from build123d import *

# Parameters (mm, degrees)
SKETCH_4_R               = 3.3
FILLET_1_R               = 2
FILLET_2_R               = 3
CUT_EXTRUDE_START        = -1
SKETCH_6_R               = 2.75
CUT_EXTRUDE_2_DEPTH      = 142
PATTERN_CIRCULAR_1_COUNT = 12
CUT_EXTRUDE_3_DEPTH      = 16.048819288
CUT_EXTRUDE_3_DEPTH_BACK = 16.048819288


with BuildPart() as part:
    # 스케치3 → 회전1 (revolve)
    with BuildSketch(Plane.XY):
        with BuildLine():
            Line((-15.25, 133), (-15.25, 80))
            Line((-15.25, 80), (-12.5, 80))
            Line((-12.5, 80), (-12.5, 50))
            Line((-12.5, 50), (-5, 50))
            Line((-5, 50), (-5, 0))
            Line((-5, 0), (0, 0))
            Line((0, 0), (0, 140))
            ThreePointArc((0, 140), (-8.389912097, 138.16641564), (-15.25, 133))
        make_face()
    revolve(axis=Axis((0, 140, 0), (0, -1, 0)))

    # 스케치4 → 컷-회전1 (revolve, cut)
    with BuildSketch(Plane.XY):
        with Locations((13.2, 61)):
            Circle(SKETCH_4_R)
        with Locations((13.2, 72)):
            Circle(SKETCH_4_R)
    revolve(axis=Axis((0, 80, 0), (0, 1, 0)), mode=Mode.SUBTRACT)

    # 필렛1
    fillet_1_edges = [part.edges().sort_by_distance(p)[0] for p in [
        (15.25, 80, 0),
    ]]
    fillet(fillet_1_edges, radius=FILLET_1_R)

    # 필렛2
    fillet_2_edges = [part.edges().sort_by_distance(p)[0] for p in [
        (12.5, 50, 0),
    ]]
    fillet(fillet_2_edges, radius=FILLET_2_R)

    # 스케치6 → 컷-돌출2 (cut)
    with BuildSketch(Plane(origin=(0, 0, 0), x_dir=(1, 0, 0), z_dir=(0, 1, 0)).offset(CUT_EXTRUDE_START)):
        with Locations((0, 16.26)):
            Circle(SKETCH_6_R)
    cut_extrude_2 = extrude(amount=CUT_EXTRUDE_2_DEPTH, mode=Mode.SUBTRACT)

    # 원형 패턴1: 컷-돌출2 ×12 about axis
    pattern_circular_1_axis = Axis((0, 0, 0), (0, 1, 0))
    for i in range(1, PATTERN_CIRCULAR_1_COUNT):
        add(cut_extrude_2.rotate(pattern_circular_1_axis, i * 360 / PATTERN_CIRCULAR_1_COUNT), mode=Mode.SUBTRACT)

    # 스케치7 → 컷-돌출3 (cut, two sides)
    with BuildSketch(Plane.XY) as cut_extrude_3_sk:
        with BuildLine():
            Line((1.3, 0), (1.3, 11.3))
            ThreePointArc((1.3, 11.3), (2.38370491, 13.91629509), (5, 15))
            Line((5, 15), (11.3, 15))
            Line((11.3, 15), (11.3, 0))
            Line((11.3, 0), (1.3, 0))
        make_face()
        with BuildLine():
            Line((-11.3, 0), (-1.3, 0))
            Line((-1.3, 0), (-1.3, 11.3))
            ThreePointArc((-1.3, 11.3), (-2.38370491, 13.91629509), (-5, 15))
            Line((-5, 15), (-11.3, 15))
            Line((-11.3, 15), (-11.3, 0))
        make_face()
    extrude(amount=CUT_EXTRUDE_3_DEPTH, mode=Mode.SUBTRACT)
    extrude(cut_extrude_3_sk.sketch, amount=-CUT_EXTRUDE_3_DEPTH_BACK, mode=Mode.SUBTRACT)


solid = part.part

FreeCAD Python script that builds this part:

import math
import FreeCAD as App
import Part
import Sketcher

V = App.Vector


def edges_at(feature, points):
    """Names of the edges that pass closest to the given points."""
    edges = feature.Shape.Edges
    near = lambda p: min(range(len(edges)), key=lambda i: edges[i].distToShape(Part.Vertex(*p))[0])
    return sorted({f"Edge{near(p) + 1}" for p in points})

doc = App.newDocument("Part")
params = doc.addObject("Spreadsheet::Sheet", "Params")
for row, (alias, value) in enumerate([
    ("sketch1_width", "5 mm"),
    ("sketch1_height", "53 mm"),
    ("sketch1_height2", "30 mm"),
    ("sketch1_height3", "50 mm"),
    ("sketch1_height4", "140 mm"),
    ("revolution_angle", "360 deg"),
    ("sketch2_diameter", "6.6 mm"),
    ("groove_angle", "360 deg"),
    ("fillet_radius", "2 mm"),
    ("fillet2_radius", "3 mm"),
    ("sketch3_diameter", "5.5 mm"),
    ("pocket1_length", "142 mm"),
    ("sketch4_radius", "3.7 mm"),
    ("sketch4_width", "10 mm"),
    ("sketch4_height", "15 mm"),
], start=1):
    params.set(f"A{row}", alias)
    params.set(f"B{row}", "=" + value)
    params.setAlias(f"B{row}", alias)

body = doc.addObject("PartDesign::Body", "Body")

sketch1 = body.newObject("Sketcher::SketchObject", "Sketch")
sketch1.AttachmentSupport = (doc.getObject("XY_Plane"), [""])
sketch1.MapMode = "FlatFace"
sketch1.addGeometry(Part.LineSegment(V(-15.2, 133, 0), V(-15.2, 80, 0)), False)
sketch1.addGeometry(Part.LineSegment(V(-15.2, 80, 0), V(-12.5, 80, 0)), False)
sketch1.addGeometry(Part.LineSegment(V(-12.5, 80, 0), V(-12.5, 50, 0)), False)
sketch1.addGeometry(Part.LineSegment(V(-12.5, 50, 0), V(-5, 50, 0)), False)
sketch1.addGeometry(Part.LineSegment(V(-5, 50, 0), V(-5, 0, 0)), False)
sketch1.addGeometry(Part.LineSegment(V(-5, 0, 0), V(0, 0, 0)), False)
sketch1.addGeometry(Part.LineSegment(V(0, 0, 0), V(0, 140, 0)), False)
sketch1.addGeometry(Part.ArcOfCircle(Part.Circle(V(0, 119.9, 0), V(0, 0, 1), 20.1), math.radians(90), math.radians(139)), False)
sketch1.addConstraint(Sketcher.Constraint("Coincident", 0, 2, 1, 1))
sketch1.addConstraint(Sketcher.Constraint("Coincident", 1, 2, 2, 1))
sketch1.addConstraint(Sketcher.Constraint("Coincident", 2, 2, 3, 1))
sketch1.addConstraint(Sketcher.Constraint("Coincident", 3, 2, 4, 1))
sketch1.addConstraint(Sketcher.Constraint("Coincident", 4, 2, 5, 1))
sketch1.addConstraint(Sketcher.Constraint("Coincident", 5, 2, 6, 1))
sketch1.addConstraint(Sketcher.Constraint("Coincident", 6, 2, 7, 1))
sketch1.addConstraint(Sketcher.Constraint("Coincident", 7, 2, 0, 1))
sketch1.addConstraint(Sketcher.Constraint("Vertical", 0))
sketch1.addConstraint(Sketcher.Constraint("Horizontal", 1))
sketch1.addConstraint(Sketcher.Constraint("Vertical", 2))
sketch1.addConstraint(Sketcher.Constraint("Horizontal", 3))
sketch1.addConstraint(Sketcher.Constraint("Vertical", 4))
sketch1.addConstraint(Sketcher.Constraint("Horizontal", 5))
sketch1.addConstraint(Sketcher.Constraint("Vertical", 6))
sketch1.addConstraint(Sketcher.Constraint("Coincident", 5, 2, -1, 1))
sketch1.addConstraint(Sketcher.Constraint("PointOnObject", 7, 3, -2))
sketch1.addConstraint(Sketcher.Constraint("DistanceX", 5, 1, 5, 2, 5.0))
sketch1.addConstraint(Sketcher.Constraint("DistanceY", 0, 2, 0, 1, 53.0))
sketch1.addConstraint(Sketcher.Constraint("DistanceY", 2, 2, 2, 1, 30.0))
sketch1.addConstraint(Sketcher.Constraint("DistanceY", 4, 2, 4, 1, 50.0))
sketch1.addConstraint(Sketcher.Constraint("DistanceY", 6, 1, 6, 2, 140.0))
sketch1.addConstraint(Sketcher.Constraint("DistanceX", 3, 1, 3, 2, 7.5))
sketch1.addConstraint(Sketcher.Constraint("DistanceX", 1, 1, 1, 2, 2.75))
sketch1.setExpression("Constraints[17]", "Params.sketch1_width")
sketch1.setExpression("Constraints[18]", "Params.sketch1_height")
sketch1.setExpression("Constraints[19]", "Params.sketch1_height2")
sketch1.setExpression("Constraints[20]", "Params.sketch1_height3")
sketch1.setExpression("Constraints[21]", "Params.sketch1_height4")
revolution = body.newObject("PartDesign::Revolution", "Revolution")
revolution.Profile = sketch1
revolution.ReferenceAxis = (sketch1, ["V_Axis"])
revolution.setExpression("Angle", "Params.revolution_angle")

sketch2 = body.newObject("Sketcher::SketchObject", "Sketch001")
sketch2.AttachmentSupport = (doc.getObject("XY_Plane"), [""])
sketch2.MapMode = "FlatFace"
sketch2.addGeometry(Part.Circle(V(13.2, 61, 0), V(0, 0, 1), 3.3), False)
sketch2.addGeometry(Part.Circle(V(13.2, 72, 0), V(0, 0, 1), 3.3), False)
sketch2.addConstraint(Sketcher.Constraint("Equal", 0, 1))
sketch2.addConstraint(Sketcher.Constraint("Vertical", 0, 3, 1, 3))
sketch2.addConstraint(Sketcher.Constraint("Diameter", 0, 6.6))
sketch2.addConstraint(Sketcher.Constraint("DistanceY", -1, 1, 0, 3, 61.0))
sketch2.addConstraint(Sketcher.Constraint("DistanceY", -1, 1, 1, 3, 72.0))
sketch2.addConstraint(Sketcher.Constraint("DistanceX", -1, 1, 0, 3, 13.2))
sketch2.setExpression("Constraints[2]", "Params.sketch2_diameter")
groove = body.newObject("PartDesign::Groove", "Groove")
groove.Profile = sketch2
groove.ReferenceAxis = (sketch2, ["V_Axis"])
groove.setExpression("Angle", "Params.groove_angle")
doc.recompute()

fillet = body.newObject("PartDesign::Fillet", "Fillet")
fillet.Base = (groove, edges_at(groove, [(15.25, 80, 0)]))
fillet.setExpression("Radius", "Params.fillet_radius")
doc.recompute()

fillet2 = body.newObject("PartDesign::Fillet", "Fillet001")
fillet2.Base = (fillet, edges_at(fillet, [(12.5, 50, 0)]))
fillet2.setExpression("Radius", "Params.fillet2_radius")

sketch3 = body.newObject("Sketcher::SketchObject", "Sketch002")
sketch3.AttachmentSupport = (doc.getObject("XZ_Plane"), [""])
sketch3.MapMode = "FlatFace"
sketch3.AttachmentOffset = App.Placement(V(0, 0, 1), App.Rotation())
sketch3.addGeometry(Part.Circle(V(0, -16.3, 0), V(0, 0, 1), 2.8), False)
sketch3.addConstraint(Sketcher.Constraint("PointOnObject", 0, 3, -2))
sketch3.addConstraint(Sketcher.Constraint("Diameter", 0, 5.5))
sketch3.addConstraint(Sketcher.Constraint("DistanceY", 0, 3, -1, 1, 16.26))
sketch3.setExpression("Constraints[1]", "Params.sketch3_diameter")
pocket1 = body.newObject("PartDesign::Pocket", "Pocket")
pocket1.Profile = sketch3
pocket1.setExpression("Length", "Params.pocket1_length")
doc.recompute()

polarpattern = body.newObject("PartDesign::PolarPattern", "PolarPattern")
polarpattern.Originals = [pocket1]
polarpattern.Axis = (doc.getObject("Y_Axis"), [""])
polarpattern.Angle = 360
polarpattern.Occurrences = 12
body.Tip = polarpattern

sketch4 = body.newObject("Sketcher::SketchObject", "Sketch003")
sketch4.AttachmentSupport = (doc.getObject("XY_Plane"), [""])
sketch4.MapMode = "FlatFace"
sketch4.addGeometry(Part.LineSegment(V(1.3, 11.3, 0), V(1.3, 0, 0)), False)
sketch4.addGeometry(Part.LineSegment(V(1.3, 0, 0), V(11.3, 0, 0)), False)
sketch4.addGeometry(Part.LineSegment(V(11.3, 0, 0), V(11.3, 15, 0)), False)
sketch4.addGeometry(Part.LineSegment(V(11.3, 15, 0), V(5, 15, 0)), False)
sketch4.addGeometry(Part.ArcOfCircle(Part.Circle(V(5, 11.3, 0), V(0, 0, 1), 3.7), math.radians(90), math.radians(180)), False)
sketch4.addGeometry(Part.LineSegment(V(-11.3, 0, 0), V(-1.3, 0, 0)), False)
sketch4.addGeometry(Part.LineSegment(V(-1.3, 0, 0), V(-1.3, 11.3, 0)), False)
sketch4.addGeometry(Part.ArcOfCircle(Part.Circle(V(-5, 11.3, 0), V(0, 0, 1), 3.7), math.radians(0), math.radians(90)), False)
sketch4.addGeometry(Part.LineSegment(V(-5, 15, 0), V(-11.3, 15, 0)), False)
sketch4.addGeometry(Part.LineSegment(V(-11.3, 15, 0), V(-11.3, 0, 0)), False)
sketch4.addConstraint(Sketcher.Constraint("Coincident", 0, 2, 1, 1))
sketch4.addConstraint(Sketcher.Constraint("Coincident", 1, 2, 2, 1))
sketch4.addConstraint(Sketcher.Constraint("Coincident", 2, 2, 3, 1))
sketch4.addConstraint(Sketcher.Constraint("Tangent", 3, 2, 4, 1))
sketch4.addConstraint(Sketcher.Constraint("Tangent", 4, 2, 0, 1))
sketch4.addConstraint(Sketcher.Constraint("Coincident", 5, 2, 6, 1))
sketch4.addConstraint(Sketcher.Constraint("Tangent", 6, 2, 7, 1))
sketch4.addConstraint(Sketcher.Constraint("Tangent", 7, 2, 8, 1))
sketch4.addConstraint(Sketcher.Constraint("Coincident", 8, 2, 9, 1))
sketch4.addConstraint(Sketcher.Constraint("Coincident", 9, 2, 5, 1))
sketch4.addConstraint(Sketcher.Constraint("Vertical", 0))
sketch4.addConstraint(Sketcher.Constraint("Horizontal", 1))
sketch4.addConstraint(Sketcher.Constraint("Vertical", 2))
sketch4.addConstraint(Sketcher.Constraint("Horizontal", 3))
sketch4.addConstraint(Sketcher.Constraint("Horizontal", 5))
sketch4.addConstraint(Sketcher.Constraint("Vertical", 6))
sketch4.addConstraint(Sketcher.Constraint("Horizontal", 8))
sketch4.addConstraint(Sketcher.Constraint("Vertical", 9))
sketch4.addConstraint(Sketcher.Constraint("Equal", 4, 7))
sketch4.addConstraint(Sketcher.Constraint("Symmetric", 0, 2, 5, 2, -1, 1))
sketch4.addConstraint(Sketcher.Constraint("Symmetric", 2, 2, 8, 2, -2))
sketch4.addConstraint(Sketcher.Constraint("PointOnObject", 0, 2, -1))
sketch4.addConstraint(Sketcher.Constraint("Radius", 4, 3.7))
sketch4.addConstraint(Sketcher.Constraint("DistanceX", 1, 1, 1, 2, 10.0))
sketch4.addConstraint(Sketcher.Constraint("DistanceY", 2, 1, 2, 2, 15.0))
sketch4.addConstraint(Sketcher.Constraint("DistanceX", -1, 1, 4, 3, 5.0))
sketch4.setExpression("Constraints[22]", "Params.sketch4_radius")
sketch4.setExpression("Constraints[23]", "Params.sketch4_width")
sketch4.setExpression("Constraints[24]", "Params.sketch4_height")
pocket2 = body.newObject("PartDesign::Pocket", "Pocket001")
pocket2.Profile = sketch4
pocket2.Type = "ThroughAll"
pocket2.Midplane = True

doc.recompute()
